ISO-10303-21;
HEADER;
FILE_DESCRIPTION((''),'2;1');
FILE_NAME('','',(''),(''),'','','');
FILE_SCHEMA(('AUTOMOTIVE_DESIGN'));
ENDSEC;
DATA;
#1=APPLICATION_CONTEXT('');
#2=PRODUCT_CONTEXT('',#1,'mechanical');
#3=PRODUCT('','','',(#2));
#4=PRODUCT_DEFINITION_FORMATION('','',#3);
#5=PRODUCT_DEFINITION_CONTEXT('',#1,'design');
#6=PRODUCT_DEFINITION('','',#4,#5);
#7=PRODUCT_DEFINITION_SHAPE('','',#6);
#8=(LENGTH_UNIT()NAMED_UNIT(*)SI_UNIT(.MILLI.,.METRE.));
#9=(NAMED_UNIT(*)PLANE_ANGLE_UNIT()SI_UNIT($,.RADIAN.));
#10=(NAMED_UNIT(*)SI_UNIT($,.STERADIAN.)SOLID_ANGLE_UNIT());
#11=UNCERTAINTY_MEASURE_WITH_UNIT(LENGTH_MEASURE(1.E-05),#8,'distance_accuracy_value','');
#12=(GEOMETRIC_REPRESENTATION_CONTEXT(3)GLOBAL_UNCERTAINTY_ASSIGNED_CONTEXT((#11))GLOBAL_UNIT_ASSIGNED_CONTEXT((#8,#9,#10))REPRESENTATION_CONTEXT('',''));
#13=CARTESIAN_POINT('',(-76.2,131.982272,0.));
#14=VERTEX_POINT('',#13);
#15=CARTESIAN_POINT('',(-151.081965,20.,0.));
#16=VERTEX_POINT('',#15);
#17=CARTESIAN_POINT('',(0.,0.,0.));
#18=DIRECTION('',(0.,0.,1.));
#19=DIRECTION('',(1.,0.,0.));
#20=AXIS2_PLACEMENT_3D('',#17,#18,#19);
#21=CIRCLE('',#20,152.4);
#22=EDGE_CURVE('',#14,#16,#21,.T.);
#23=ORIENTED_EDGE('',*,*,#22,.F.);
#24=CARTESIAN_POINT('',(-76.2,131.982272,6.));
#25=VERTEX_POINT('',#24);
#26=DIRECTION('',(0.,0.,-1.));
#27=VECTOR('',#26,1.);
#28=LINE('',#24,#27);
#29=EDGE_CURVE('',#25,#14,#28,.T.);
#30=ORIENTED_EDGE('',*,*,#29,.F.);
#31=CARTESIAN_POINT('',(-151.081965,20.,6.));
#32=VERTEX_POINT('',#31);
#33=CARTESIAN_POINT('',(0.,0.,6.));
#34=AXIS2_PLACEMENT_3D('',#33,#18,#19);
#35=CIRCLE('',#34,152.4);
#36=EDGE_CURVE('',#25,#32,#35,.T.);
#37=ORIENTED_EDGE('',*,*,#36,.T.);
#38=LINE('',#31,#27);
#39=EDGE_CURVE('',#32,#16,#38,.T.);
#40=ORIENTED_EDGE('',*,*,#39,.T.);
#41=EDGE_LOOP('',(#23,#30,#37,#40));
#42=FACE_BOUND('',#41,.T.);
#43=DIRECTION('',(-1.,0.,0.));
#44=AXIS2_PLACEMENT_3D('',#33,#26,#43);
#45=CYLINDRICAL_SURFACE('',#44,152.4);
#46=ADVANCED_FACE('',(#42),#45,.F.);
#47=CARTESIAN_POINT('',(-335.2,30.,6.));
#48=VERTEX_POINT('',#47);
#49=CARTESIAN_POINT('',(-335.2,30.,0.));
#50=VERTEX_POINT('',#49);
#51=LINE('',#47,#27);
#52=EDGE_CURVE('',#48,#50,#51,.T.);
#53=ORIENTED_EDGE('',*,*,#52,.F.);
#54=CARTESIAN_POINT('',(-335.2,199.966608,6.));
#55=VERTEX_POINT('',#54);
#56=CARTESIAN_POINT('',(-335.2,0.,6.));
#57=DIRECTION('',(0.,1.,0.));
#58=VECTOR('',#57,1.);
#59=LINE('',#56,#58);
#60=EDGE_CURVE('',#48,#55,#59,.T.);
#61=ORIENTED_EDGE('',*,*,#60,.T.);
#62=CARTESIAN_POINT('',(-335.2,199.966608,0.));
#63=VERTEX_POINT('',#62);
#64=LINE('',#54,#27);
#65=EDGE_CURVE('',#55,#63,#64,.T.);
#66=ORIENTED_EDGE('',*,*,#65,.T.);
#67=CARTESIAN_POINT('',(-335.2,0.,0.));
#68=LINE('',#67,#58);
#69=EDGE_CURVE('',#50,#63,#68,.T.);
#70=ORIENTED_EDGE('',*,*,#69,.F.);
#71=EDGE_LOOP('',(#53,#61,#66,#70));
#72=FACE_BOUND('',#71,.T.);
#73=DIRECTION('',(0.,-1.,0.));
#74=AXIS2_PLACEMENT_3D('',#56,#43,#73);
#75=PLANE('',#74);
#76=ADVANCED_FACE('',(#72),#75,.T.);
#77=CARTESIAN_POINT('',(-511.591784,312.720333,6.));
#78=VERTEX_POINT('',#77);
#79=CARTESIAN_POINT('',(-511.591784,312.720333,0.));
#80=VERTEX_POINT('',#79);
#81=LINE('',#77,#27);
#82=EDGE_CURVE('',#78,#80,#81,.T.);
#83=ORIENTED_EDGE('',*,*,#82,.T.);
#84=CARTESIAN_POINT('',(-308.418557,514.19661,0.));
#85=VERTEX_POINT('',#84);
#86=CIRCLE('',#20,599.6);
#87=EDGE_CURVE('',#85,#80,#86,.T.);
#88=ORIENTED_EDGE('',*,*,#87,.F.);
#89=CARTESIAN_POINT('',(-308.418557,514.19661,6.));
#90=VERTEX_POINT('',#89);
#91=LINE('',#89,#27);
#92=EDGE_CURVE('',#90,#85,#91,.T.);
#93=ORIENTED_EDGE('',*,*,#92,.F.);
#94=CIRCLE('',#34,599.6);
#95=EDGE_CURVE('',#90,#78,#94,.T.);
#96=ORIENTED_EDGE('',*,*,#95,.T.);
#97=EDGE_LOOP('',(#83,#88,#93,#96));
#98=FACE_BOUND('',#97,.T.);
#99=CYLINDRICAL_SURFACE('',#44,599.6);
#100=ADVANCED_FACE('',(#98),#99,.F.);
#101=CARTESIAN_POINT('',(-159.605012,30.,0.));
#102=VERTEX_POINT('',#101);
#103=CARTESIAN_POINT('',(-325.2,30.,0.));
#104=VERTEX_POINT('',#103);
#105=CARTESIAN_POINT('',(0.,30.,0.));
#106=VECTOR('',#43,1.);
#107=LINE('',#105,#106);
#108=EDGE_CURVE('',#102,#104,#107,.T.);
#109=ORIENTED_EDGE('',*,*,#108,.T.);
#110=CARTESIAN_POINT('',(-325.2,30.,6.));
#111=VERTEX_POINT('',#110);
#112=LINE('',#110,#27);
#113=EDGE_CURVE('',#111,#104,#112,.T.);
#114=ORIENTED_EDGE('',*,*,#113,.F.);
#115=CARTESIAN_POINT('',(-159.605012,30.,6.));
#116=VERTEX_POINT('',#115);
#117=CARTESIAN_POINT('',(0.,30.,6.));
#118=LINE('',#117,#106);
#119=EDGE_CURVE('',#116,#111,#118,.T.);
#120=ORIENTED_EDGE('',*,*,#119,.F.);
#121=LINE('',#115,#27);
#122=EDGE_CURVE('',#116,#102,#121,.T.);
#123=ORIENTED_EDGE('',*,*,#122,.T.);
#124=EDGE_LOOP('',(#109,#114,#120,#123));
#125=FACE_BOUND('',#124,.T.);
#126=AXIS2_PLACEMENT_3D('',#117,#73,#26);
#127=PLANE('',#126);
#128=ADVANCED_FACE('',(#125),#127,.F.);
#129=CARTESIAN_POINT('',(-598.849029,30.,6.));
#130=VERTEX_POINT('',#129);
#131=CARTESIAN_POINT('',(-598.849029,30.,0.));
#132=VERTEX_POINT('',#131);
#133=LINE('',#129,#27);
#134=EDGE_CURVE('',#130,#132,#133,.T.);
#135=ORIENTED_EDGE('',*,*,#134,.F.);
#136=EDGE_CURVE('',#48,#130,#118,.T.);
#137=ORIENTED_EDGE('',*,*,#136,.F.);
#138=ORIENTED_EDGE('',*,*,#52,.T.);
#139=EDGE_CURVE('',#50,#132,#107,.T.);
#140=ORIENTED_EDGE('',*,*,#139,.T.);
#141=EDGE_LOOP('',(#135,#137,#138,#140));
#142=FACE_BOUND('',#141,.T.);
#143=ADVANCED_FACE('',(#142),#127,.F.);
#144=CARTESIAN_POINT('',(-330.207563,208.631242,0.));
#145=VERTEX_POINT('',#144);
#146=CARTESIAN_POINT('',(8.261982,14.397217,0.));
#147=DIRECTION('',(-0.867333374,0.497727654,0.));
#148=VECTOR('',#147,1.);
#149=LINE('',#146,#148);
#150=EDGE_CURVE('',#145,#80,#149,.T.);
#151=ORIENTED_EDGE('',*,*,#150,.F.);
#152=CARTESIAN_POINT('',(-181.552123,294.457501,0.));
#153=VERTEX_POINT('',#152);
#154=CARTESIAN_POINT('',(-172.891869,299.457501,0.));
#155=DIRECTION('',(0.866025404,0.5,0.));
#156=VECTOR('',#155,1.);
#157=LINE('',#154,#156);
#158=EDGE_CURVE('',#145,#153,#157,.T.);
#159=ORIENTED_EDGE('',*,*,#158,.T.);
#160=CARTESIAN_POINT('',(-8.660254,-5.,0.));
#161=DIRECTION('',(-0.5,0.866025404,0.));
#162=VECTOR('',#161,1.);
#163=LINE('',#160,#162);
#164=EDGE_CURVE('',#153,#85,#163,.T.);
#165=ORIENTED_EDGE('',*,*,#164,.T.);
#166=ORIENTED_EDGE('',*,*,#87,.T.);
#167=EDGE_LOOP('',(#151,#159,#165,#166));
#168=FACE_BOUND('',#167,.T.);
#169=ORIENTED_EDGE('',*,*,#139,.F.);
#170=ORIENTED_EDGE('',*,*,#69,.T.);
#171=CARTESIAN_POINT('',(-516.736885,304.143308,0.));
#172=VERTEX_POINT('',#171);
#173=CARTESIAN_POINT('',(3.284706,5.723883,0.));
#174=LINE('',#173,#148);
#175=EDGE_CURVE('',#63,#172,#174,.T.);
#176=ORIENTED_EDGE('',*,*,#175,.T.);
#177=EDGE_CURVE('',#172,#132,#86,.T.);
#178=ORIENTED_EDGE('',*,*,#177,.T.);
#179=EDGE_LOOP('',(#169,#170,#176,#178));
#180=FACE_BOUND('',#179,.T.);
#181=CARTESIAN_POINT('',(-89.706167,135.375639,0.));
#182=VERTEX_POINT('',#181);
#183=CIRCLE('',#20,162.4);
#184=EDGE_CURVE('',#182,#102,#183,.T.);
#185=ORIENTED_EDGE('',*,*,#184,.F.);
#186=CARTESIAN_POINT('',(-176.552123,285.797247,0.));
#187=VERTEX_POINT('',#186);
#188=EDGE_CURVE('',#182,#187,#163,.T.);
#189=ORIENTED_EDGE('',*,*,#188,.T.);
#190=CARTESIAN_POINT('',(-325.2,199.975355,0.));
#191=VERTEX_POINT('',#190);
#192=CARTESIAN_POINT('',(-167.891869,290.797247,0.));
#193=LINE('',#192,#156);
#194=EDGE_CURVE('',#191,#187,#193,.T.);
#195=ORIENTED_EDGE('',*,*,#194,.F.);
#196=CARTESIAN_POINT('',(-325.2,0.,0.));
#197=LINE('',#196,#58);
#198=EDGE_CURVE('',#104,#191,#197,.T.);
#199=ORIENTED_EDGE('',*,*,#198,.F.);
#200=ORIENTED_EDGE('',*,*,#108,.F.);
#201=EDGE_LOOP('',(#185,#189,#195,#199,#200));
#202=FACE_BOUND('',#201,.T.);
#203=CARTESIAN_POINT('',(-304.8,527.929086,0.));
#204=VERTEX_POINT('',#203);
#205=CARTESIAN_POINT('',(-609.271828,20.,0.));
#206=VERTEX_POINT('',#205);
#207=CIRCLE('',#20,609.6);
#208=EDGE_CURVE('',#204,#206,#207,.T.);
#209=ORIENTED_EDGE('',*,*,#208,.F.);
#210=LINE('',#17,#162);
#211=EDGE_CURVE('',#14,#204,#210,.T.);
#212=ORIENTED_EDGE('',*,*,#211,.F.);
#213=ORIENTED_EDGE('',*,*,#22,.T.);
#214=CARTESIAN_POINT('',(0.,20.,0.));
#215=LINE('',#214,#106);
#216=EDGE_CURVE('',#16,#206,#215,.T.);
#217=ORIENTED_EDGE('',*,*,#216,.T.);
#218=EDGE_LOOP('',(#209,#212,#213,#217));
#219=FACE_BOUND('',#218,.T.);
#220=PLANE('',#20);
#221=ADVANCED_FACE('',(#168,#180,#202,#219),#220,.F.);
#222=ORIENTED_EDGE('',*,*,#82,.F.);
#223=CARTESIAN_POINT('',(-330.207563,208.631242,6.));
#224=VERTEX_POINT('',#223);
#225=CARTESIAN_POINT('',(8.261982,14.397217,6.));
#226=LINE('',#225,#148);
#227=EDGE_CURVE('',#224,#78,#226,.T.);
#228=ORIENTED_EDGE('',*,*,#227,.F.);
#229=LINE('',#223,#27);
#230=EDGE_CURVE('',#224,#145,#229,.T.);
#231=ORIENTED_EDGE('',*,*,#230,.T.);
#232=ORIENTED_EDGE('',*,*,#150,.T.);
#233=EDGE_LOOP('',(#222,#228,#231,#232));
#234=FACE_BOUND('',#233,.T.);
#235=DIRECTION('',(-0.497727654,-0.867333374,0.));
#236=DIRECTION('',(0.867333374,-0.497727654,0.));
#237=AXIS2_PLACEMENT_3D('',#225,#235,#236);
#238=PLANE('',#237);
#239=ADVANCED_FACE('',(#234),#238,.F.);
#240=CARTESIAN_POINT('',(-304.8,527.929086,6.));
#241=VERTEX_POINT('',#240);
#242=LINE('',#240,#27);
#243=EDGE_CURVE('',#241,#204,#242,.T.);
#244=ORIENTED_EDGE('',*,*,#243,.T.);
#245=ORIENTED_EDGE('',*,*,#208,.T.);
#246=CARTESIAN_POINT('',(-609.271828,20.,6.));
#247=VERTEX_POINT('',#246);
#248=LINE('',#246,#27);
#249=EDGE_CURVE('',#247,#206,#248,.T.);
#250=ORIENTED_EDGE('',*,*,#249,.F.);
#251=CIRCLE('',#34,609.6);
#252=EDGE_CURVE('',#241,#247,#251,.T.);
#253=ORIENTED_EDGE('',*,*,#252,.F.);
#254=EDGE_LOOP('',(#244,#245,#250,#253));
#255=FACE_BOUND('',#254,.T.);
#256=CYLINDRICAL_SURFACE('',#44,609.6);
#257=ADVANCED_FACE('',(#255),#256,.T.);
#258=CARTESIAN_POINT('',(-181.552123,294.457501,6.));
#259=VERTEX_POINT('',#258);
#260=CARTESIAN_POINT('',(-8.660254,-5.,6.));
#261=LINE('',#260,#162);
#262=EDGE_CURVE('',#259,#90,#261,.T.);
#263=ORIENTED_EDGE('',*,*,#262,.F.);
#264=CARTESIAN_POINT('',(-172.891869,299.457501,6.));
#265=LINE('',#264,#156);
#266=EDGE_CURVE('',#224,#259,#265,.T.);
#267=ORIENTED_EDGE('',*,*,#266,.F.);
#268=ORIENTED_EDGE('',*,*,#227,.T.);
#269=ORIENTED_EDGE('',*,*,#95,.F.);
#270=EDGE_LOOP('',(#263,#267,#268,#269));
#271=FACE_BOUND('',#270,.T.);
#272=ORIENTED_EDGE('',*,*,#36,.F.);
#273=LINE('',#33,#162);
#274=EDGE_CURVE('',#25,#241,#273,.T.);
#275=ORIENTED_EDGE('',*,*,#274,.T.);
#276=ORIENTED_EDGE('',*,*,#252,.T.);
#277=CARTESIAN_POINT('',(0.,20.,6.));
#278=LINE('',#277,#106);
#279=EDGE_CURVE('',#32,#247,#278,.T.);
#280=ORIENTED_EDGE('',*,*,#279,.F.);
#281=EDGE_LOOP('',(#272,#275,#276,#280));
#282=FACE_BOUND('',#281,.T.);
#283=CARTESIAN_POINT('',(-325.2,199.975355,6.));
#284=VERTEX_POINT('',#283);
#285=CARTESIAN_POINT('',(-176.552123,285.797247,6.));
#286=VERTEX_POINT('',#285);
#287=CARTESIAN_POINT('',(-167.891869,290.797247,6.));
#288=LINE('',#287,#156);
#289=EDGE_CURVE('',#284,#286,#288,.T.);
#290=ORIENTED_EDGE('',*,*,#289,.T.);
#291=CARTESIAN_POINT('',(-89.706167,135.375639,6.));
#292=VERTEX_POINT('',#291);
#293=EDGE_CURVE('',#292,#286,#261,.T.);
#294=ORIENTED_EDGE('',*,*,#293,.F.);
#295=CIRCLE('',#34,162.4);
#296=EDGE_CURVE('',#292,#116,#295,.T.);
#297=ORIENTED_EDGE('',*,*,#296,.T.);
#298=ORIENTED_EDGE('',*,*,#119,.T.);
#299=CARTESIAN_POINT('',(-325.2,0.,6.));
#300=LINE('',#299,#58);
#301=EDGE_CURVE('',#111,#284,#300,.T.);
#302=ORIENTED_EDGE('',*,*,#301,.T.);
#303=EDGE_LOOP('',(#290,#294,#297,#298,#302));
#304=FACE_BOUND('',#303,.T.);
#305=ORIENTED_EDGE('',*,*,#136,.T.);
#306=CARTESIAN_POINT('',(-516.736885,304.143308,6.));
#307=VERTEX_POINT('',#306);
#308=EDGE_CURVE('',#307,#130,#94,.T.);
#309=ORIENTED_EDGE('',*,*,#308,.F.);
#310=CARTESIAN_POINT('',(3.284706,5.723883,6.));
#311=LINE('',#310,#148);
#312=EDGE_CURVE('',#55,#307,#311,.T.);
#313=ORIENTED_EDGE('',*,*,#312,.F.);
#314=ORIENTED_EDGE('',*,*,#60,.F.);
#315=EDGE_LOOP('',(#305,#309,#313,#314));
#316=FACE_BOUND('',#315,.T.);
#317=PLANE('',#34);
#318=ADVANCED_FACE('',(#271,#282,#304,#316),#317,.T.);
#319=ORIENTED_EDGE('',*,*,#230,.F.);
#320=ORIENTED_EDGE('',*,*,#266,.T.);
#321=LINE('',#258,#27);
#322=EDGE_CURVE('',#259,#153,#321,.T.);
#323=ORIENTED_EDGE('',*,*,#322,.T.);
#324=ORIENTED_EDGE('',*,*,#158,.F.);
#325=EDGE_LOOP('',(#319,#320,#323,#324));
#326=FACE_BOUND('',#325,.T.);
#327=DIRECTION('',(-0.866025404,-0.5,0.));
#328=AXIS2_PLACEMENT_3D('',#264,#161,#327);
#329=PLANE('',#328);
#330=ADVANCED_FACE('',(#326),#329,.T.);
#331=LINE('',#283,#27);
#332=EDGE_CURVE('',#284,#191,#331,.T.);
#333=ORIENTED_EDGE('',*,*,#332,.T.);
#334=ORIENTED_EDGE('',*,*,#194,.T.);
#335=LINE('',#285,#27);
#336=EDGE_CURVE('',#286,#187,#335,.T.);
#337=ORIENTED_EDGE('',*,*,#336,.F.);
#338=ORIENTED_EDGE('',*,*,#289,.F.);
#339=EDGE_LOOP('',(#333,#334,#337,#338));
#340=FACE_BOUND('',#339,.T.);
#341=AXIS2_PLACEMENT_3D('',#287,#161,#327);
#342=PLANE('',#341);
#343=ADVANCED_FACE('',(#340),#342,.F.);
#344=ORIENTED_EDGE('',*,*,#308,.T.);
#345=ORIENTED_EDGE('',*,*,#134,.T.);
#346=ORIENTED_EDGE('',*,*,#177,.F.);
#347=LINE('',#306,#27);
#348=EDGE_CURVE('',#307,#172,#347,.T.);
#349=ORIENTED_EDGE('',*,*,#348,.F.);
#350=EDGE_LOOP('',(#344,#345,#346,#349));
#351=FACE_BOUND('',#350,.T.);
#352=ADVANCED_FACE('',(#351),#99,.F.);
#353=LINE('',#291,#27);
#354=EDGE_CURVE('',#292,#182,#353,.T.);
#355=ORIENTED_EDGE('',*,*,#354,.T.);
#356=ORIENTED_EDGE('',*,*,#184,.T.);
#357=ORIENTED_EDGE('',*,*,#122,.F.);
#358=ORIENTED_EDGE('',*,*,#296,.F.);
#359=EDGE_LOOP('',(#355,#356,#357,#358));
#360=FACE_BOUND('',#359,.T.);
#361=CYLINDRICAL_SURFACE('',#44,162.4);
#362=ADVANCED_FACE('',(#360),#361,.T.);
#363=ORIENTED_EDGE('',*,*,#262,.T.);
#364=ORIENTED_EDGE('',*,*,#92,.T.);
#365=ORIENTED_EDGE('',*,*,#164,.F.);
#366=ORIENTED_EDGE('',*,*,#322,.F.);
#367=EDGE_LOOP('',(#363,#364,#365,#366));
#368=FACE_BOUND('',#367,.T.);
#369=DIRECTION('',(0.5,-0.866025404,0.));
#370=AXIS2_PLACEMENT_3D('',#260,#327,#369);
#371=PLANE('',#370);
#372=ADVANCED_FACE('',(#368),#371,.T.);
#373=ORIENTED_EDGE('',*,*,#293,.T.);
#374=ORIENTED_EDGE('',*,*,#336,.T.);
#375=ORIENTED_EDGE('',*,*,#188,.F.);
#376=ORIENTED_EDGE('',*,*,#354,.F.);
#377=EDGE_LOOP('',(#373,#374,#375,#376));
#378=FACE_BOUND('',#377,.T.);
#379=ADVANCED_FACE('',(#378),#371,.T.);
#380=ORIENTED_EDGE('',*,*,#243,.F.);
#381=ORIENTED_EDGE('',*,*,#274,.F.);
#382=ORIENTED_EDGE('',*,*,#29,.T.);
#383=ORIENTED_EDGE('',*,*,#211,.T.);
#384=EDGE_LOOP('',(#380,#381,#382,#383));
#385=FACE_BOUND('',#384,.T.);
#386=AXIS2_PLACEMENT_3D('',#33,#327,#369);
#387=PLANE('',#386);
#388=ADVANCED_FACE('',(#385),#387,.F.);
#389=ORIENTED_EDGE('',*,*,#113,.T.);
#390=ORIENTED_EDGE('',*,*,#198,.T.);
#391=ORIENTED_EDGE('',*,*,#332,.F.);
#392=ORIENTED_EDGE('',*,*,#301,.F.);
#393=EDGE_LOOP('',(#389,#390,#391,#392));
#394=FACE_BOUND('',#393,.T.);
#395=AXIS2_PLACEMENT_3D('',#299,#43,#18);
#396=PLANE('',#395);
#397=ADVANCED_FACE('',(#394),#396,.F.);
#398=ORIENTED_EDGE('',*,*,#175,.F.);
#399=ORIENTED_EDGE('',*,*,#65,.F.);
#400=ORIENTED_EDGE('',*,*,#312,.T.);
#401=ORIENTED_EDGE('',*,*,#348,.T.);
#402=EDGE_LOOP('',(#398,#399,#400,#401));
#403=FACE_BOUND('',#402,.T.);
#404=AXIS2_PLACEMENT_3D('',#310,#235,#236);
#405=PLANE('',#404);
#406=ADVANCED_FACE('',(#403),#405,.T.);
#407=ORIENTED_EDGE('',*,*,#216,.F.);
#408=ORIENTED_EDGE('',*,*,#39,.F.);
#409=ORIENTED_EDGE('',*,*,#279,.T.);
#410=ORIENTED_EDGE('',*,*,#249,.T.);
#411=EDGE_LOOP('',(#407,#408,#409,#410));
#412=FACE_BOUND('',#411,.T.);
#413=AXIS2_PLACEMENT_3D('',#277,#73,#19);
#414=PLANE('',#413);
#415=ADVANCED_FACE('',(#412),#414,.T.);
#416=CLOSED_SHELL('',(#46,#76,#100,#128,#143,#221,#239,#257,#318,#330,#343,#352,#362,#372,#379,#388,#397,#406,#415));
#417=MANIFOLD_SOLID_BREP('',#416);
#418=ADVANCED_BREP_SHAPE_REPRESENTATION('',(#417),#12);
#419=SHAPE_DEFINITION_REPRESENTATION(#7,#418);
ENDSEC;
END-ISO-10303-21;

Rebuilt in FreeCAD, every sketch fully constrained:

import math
import FreeCAD as App
import Part
import Sketcher
from FreeCAD import Vector
Q = App.Units.Quantity

doc = App.newDocument("Part")
params = doc.addObject("Spreadsheet::Sheet", "Params")
for row, (alias, value) in enumerate([
    ("sketch1_radius", "609.6 mm"),
    ("sketch1_radius2", "152.4 mm"),
    ("sketch1_radius3", "599.6 mm"),
    ("sketch1_radius4", "162.4 mm"),
    ("pad1_length", "6 mm"),
], start=1):
    params.set(f"A{row}", alias)
    params.set(f"B{row}", "=" + value)
    params.setAlias(f"B{row}", alias)

body = doc.addObject("PartDesign::Body", "Body")

# Sketch on XY plane
sketch1 = body.newObject("Sketcher::SketchObject", "Sketch")
sketch1.AttachmentSupport = (doc.getObject("XY_Plane"), [""])
sketch1.MapMode = "FlatFace"
sketch1.addGeometry(Part.LineSegment(Vector(-76, 132, 0), Vector(-305, 528, 0)), False)
sketch1.addGeometry(Part.ArcOfCircle(Part.Circle(Vector(0, 0, 0), Vector(0, 0, 1), 610), math.radians(120), math.radians(178)), False)
sketch1.addGeometry(Part.LineSegment(Vector(-609, 20, 0), Vector(-151, 20, 0)), False)
sketch1.addGeometry(Part.ArcOfCircle(Part.Circle(Vector(0, 0, 0), Vector(0, 0, 1), 152), math.radians(120), math.radians(172)), False)
sketch1.addGeometry(Part.LineSegment(Vector(-517, 304, 0), Vector(-335, 200, 0)), False)
sketch1.addGeometry(Part.LineSegment(Vector(-335, 200, 0), Vector(-335, 30, 0)), False)
sketch1.addGeometry(Part.LineSegment(Vector(-335, 30, 0), Vector(-599, 30, 0)), False)
sketch1.addGeometry(Part.ArcOfCircle(Part.Circle(Vector(0, 0, 0), Vector(0, 0, 1), 600), math.radians(150), math.radians(177)), False)
sketch1.addGeometry(Part.LineSegment(Vector(-177, 286, 0), Vector(-90, 135, 0)), False)
sketch1.addGeometry(Part.ArcOfCircle(Part.Circle(Vector(0, 0, 0), Vector(0, 0, 1), 162), math.radians(124), math.radians(169)), False)
sketch1.addGeometry(Part.LineSegment(Vector(-160, 30, 0), Vector(-325, 30, 0)), False)
sketch1.addGeometry(Part.LineSegment(Vector(-325, 30, 0), Vector(-325, 200, 0)), False)
sketch1.addGeometry(Part.LineSegment(Vector(-325, 200, 0), Vector(-177, 286, 0)), False)
sketch1.addGeometry(Part.LineSegment(Vector(-182, 294, 0), Vector(-330, 209, 0)), False)
sketch1.addGeometry(Part.LineSegment(Vector(-330, 209, 0), Vector(-512, 313, 0)), False)
sketch1.addGeometry(Part.ArcOfCircle(Part.Circle(Vector(0, 0, 0), Vector(0, 0, 1), 600), math.radians(121), math.radians(149)), False)
sketch1.addGeometry(Part.LineSegment(Vector(-308, 514, 0), Vector(-182, 294, 0)), False)
sketch1.addConstraint(Sketcher.Constraint("Coincident", 0, 2, 1, 1))
sketch1.addConstraint(Sketcher.Constraint("Coincident", 1, 2, 2, 1))
sketch1.addConstraint(Sketcher.Constraint("Coincident", 2, 2, 3, 2))
sketch1.addConstraint(Sketcher.Constraint("Coincident", 3, 1, 0, 1))
sketch1.addConstraint(Sketcher.Constraint("Coincident", 4, 2, 5, 1))
sketch1.addConstraint(Sketcher.Constraint("Coincident", 5, 2, 6, 1))
sketch1.addConstraint(Sketcher.Constraint("Coincident", 6, 2, 7, 2))
sketch1.addConstraint(Sketcher.Constraint("Coincident", 7, 1, 4, 1))
sketch1.addConstraint(Sketcher.Constraint("Coincident", 8, 2, 9, 1))
sketch1.addConstraint(Sketcher.Constraint("Coincident", 9, 2, 10, 1))
sketch1.addConstraint(Sketcher.Constraint("Coincident", 10, 2, 11, 1))
sketch1.addConstraint(Sketcher.Constraint("Coincident", 11, 2, 12, 1))
sketch1.addConstraint(Sketcher.Constraint("Coincident", 12, 2, 8, 1))
sketch1.addConstraint(Sketcher.Constraint("Coincident", 13, 2, 14, 1))
sketch1.addConstraint(Sketcher.Constraint("Coincident", 14, 2, 15, 2))
sketch1.addConstraint(Sketcher.Constraint("Coincident", 15, 1, 16, 1))
sketch1.addConstraint(Sketcher.Constraint("Coincident", 16, 2, 13, 1))
sketch1.addConstraint(Sketcher.Constraint("Horizontal", 2))
sketch1.addConstraint(Sketcher.Constraint("Vertical", 5))
sketch1.addConstraint(Sketcher.Constraint("Horizontal", 6))
sketch1.addConstraint(Sketcher.Constraint("Horizontal", 10))
sketch1.addConstraint(Sketcher.Constraint("Vertical", 11))
sketch1.addConstraint(Sketcher.Constraint("Coincident", 1, 3, -1, 1))
sketch1.addConstraint(Sketcher.Constraint("Coincident", 3, 3, -1, 1))
sketch1.addConstraint(Sketcher.Constraint("Coincident", 7, 3, -1, 1))
sketch1.addConstraint(Sketcher.Constraint("Coincident", 9, 3, -1, 1))
sketch1.addConstraint(Sketcher.Constraint("Coincident", 15, 3, -1, 1))
sketch1.addConstraint(Sketcher.Constraint("Equal", 7, 15))
sketch1.addConstraint(Sketcher.Constraint("Parallel", 0, 8))
sketch1.addConstraint(Sketcher.Constraint("Perpendicular", 8, 12))
sketch1.addConstraint(Sketcher.Constraint("Parallel", 12, 13))
sketch1.addConstraint(Sketcher.Constraint("Parallel", 4, 14))
sketch1.addConstraint(Sketcher.Constraint("Perpendicular", 13, 16))
sketch1.addConstraint(Sketcher.Constraint("Horizontal", 6, 2, 9, 2))
sketch1.addConstraint(Sketcher.Constraint("Radius", 1, 609.6))
sketch1.addConstraint(Sketcher.Constraint("Radius", 3, 152.4))
sketch1.addConstraint(Sketcher.Constraint("Radius", 7, 599.6))
sketch1.addConstraint(Sketcher.Constraint("Radius", 9, 162.4))
sketch1.addConstraint(Sketcher.Constraint("Angle", 0, Q("120 deg")))
sketch1.addConstraint(Sketcher.Constraint("DistanceY", -1, 1, 2, 2, 20.0))
sketch1.addConstraint(Sketcher.Constraint("DistanceY", -1, 1, 5, 2, 30.0))
sketch1.addConstraint(Sketcher.Constraint("DistanceX", 4, 2, 3, 1, 259.0))
sketch1.addConstraint(Sketcher.Constraint("DistanceX", 5, 2, 10, 2, 10.0))
sketch1.addConstraint(Sketcher.Constraint("DistanceX", 16, 2, 12, 2, 5.0))
sketch1.addConstraint(Sketcher.Constraint("DistanceX", 0, 2, -1, 1, 304.8))
sketch1.addConstraint(Sketcher.Constraint("DistanceY", 5, 2, 5, 1, 169.966608))
sketch1.addConstraint(Sketcher.Constraint("DistanceY", -1, 1, 16, 2, 294.457501))
sketch1.addConstraint(Sketcher.Constraint("Distance", 8, 173.691911))
sketch1.addConstraint(Sketcher.Constraint("DistanceY", 11, 1, 11, 2, 169.975355))
sketch1.addConstraint(Sketcher.Constraint("DistanceX", 13, 2, 12, 2, 153.65544))
sketch1.addConstraint(Sketcher.Constraint("DistanceX", 14, 2, 13, 2, 181.384221))
sketch1.setExpression("Constraints[34]", "Params.sketch1_radius")
sketch1.setExpression("Constraints[35]", "Params.sketch1_radius2")
sketch1.setExpression("Constraints[36]", "Params.sketch1_radius3")
sketch1.setExpression("Constraints[37]", "Params.sketch1_radius4")
pad1 = body.newObject("PartDesign::Pad", "Pad")
pad1.Profile = sketch1
pad1.setExpression("Length", "Params.pad1_length")

doc.recompute()
